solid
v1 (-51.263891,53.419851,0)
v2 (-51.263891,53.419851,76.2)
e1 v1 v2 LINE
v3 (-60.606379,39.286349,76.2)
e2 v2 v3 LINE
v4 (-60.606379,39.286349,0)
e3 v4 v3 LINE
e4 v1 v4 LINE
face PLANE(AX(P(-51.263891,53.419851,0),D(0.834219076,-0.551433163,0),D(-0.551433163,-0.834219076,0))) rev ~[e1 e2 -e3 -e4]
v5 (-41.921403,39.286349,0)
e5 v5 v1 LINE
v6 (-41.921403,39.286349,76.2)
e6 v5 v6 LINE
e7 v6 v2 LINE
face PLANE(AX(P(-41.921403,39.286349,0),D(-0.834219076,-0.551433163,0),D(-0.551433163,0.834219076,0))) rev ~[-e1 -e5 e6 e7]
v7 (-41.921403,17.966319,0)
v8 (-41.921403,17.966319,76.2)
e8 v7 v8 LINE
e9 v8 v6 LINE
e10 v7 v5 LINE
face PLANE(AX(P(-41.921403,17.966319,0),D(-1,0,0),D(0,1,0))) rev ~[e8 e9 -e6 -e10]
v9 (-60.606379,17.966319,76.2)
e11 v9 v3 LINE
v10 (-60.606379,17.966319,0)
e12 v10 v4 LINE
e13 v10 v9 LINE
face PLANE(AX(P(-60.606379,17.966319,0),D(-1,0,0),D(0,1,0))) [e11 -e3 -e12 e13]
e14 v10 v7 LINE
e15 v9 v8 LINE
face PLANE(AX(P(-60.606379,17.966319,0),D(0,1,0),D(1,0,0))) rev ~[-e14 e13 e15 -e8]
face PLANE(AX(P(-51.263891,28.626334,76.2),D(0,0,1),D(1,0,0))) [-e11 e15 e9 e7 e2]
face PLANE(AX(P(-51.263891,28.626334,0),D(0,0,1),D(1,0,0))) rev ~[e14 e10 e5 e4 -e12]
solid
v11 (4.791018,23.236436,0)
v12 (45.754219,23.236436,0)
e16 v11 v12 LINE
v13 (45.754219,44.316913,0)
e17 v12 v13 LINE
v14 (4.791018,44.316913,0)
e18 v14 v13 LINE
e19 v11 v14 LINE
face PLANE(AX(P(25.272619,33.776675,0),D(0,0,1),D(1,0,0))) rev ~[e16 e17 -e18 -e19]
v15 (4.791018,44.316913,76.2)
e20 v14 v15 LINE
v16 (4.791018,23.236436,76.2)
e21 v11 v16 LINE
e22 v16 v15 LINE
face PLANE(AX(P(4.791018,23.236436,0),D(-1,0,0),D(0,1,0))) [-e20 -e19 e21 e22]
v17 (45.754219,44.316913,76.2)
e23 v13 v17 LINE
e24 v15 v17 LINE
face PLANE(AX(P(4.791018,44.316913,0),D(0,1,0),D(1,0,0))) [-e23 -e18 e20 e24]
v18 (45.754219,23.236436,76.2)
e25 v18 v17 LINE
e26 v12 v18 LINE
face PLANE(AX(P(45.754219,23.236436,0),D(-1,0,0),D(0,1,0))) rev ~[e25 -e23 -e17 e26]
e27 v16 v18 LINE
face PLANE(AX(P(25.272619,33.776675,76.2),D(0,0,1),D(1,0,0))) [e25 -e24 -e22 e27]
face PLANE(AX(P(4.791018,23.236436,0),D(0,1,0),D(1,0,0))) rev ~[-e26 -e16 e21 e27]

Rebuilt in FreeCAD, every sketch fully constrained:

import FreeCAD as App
import Part
import Sketcher

V = App.Vector
Q = App.Units.Quantity


def add_polygon(sketch, points):
    """Adds a closed chain of lines whose ends are joined by coincident constraints."""
    first, n = sketch.GeometryCount, len(points)
    for a, b in zip(points, points[1:] + points[:1]):
        sketch.addGeometry(Part.LineSegment(App.Vector(*a, 0), App.Vector(*b, 0)), False)
    for i in range(n):
        sketch.addConstraint(Sketcher.Constraint("Coincident", first + i, 2, first + (i + 1) % n, 1))

doc = App.newDocument("Part")
body = doc.addObject("PartDesign::Body", "Body")

sketch1 = doc.addObject("Sketcher::SketchObject", "Sketch")
body.addObject(sketch1)
sketch1.AttachmentSupport = (doc.XY_Plane, [""])
sketch1.MapMode = "FlatFace"
add_polygon(sketch1, [(5, 44), (5, 23), (46, 23), (46, 44)])
sketch1.addConstraint([
    Sketcher.Constraint("Vertical", 0),
    Sketcher.Constraint("Horizontal", 1),
    Sketcher.Constraint("Vertical", 2),
    Sketcher.Constraint("Horizontal", 3),
    Sketcher.Constraint("DistanceX", 1, 1, 1, 2, 40.963201),
    Sketcher.Constraint("DistanceY", 0, 2, 0, 1, 21.080477),
    Sketcher.Constraint("DistanceX", -1, 1, 0, 2, 4.791018),
    Sketcher.Constraint("DistanceY", -1, 1, 0, 2, 23.236436),
])
pad1 = doc.addObject("PartDesign::Pad", "Pad")
body.addObject(pad1)
pad1.Profile = sketch1
pad1.Length = Q("3 in")
body2 = doc.addObject("PartDesign::Body", "Body001")

sketch2 = doc.addObject("Sketcher::SketchObject", "Sketch001")
body2.addObject(sketch2)
sketch2.AttachmentSupport = (doc.getObject("XY_Plane001"), [""])
sketch2.MapMode = "FlatFace"
add_polygon(sketch2, [(-61, 39), (-61, 18), (-42, 18), (-42, 39), (-51, 53)])
sketch2.addConstraint([
    Sketcher.Constraint("Vertical", 0),
    Sketcher.Constraint("Horizontal", 1),
    Sketcher.Constraint("Vertical", 2),
    Sketcher.Constraint("Horizontal", 2, 2, 4, 2),
    Sketcher.Constraint("Equal", 3, 4),
    Sketcher.Constraint("DistanceY", 0, 2, 0, 1, 21.32003),
    Sketcher.Constraint("DistanceX", 1, 1, 1, 2, 18.684976),
    Sketcher.Constraint("DistanceX", 0, 2, -1, 1, 60.606379),
    Sketcher.Constraint("DistanceY", -1, 1, 0, 2, 17.966319),
    Sketcher.Constraint("DistanceY", -1, 1, 3, 2, 53.419851),
])
pad2 = doc.addObject("PartDesign::Pad", "Pad001")
body2.addObject(pad2)
pad2.Profile = sketch2
pad2.Length = Q("3 in")

doc.recompute()
